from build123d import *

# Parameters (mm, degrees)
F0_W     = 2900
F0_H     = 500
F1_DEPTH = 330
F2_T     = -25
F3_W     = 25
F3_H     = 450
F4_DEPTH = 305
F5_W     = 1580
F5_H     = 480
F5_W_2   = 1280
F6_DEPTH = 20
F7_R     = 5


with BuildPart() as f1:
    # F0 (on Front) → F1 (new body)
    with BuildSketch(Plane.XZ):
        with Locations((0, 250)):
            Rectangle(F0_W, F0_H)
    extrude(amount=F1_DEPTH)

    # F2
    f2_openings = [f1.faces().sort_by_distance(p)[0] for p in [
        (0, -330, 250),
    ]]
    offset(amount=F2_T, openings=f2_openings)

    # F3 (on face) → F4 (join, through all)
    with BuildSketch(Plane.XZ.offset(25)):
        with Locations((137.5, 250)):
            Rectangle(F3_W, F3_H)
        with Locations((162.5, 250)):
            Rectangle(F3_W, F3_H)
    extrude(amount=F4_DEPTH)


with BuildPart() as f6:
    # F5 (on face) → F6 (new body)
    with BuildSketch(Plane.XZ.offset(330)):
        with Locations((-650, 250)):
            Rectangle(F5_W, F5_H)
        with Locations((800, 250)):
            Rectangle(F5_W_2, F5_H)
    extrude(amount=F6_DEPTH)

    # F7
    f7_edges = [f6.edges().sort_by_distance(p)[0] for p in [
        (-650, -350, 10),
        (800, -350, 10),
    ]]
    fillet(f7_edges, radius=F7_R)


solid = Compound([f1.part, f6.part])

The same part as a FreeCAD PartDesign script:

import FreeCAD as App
import Part
import Sketcher
Q = App.Units.Quantity


def edges_at(feature, points):
    """Names of the edges that pass closest to the given points."""
    edges = feature.Shape.Edges
    near = lambda p: min(range(len(edges)), key=lambda i: edges[i].distToShape(Part.Vertex(*p))[0])
    return sorted({f"Edge{near(p) + 1}" for p in points})


def faces_at(feature, points):
    """Names of the faces that lie closest to the given points."""
    faces = feature.Shape.Faces
    near = lambda p: min(range(len(faces)), key=lambda i: faces[i].distToShape(Part.Vertex(*p))[0])
    return sorted({f"Face{near(p) + 1}" for p in points})


def add_polygon(sketch, points):
    """Adds a closed chain of lines whose ends are joined by coincident constraints."""
    first, n = sketch.GeometryCount, len(points)
    for a, b in zip(points, points[1:] + points[:1]):
        sketch.addGeometry(Part.LineSegment(App.Vector(*a, 0), App.Vector(*b, 0)), False)
    for i in range(n):
        sketch.addConstraint(Sketcher.Constraint("Coincident", first + i, 2, first + (i + 1) % n, 1))

doc = App.newDocument("Part")
body = doc.addObject("PartDesign::Body", "Body")

# Sketch on XZ plane
sketch1 = body.newObject("Sketcher::SketchObject", "Sketch")
sketch1.AttachmentSupport = (doc.getObject("XZ_Plane"), [""])
sketch1.MapMode = "FlatFace"
add_polygon(sketch1, [(-1450, 500), (-1450, 0), (1450, 0), (1450, 500)])  # lines 0-3
sketch1.addConstraint([
    Sketcher.Constraint("Vertical", 0),
    Sketcher.Constraint("Horizontal", 1),
    Sketcher.Constraint("Vertical", 2),
    Sketcher.Constraint("Horizontal", 3),
    Sketcher.Constraint("Symmetric", 0, 2, 1, 2, -1, 1),
    Sketcher.Constraint("DistanceX", 1, 1, 1, 2, Q("2900 mm")),
    Sketcher.Constraint("DistanceY", 0, 2, 0, 1, Q("500 mm")),
])
pad1 = body.newObject("PartDesign::Pad", "Pad")
pad1.Profile = sketch1
pad1.Length = 330
doc.recompute()

thickness = body.newObject("PartDesign::Thickness", "Thickness")
thickness.Base = (pad1, faces_at(pad1, [(0, -330, 250)]))
thickness.Value = 25
thickness.Reversed = True
thickness.Join = "Arc"

# Sketch on XZ plane
sketch2 = body.newObject("Sketcher::SketchObject", "Sketch001")
sketch2.AttachmentSupport = (doc.getObject("XZ_Plane"), [""])
sketch2.MapMode = "FlatFace"
sketch2.AttachmentOffset = App.Placement(App.Vector(0, 0, 25), App.Rotation())
add_polygon(sketch2, [(125, 475), (125, 25), (175, 25), (175, 475)])  # lines 0-3
sketch2.addConstraint([
    Sketcher.Constraint("Vertical", 0),
    Sketcher.Constraint("Horizontal", 1),
    Sketcher.Constraint("Vertical", 2),
    Sketcher.Constraint("Horizontal", 3),
    Sketcher.Constraint("DistanceX", 1, 1, 1, 2, Q("50 mm")),
    Sketcher.Constraint("DistanceY", 0, 2, 0, 1, Q("450 mm")),
    Sketcher.Constraint("DistanceX", -1, 1, 0, 2, Q("125 mm")),
    Sketcher.Constraint("DistanceY", -1, 1, 0, 2, Q("25 mm")),
])
pad2 = body.newObject("PartDesign::Pad", "Pad001")
pad2.Profile = sketch2
pad2.Length = 305
body2 = doc.addObject("PartDesign::Body", "Body001")
body2.AllowCompound = True

# Sketch on XZ plane
sketch3 = body2.newObject("Sketcher::SketchObject", "Sketch002")
sketch3.AttachmentSupport = (doc.getObject("XZ_Plane001"), [""])
sketch3.MapMode = "FlatFace"
sketch3.AttachmentOffset = App.Placement(App.Vector(0, 0, 330), App.Rotation())
add_polygon(sketch3, [(-1440, 490), (-1440, 10), (140, 10), (140, 490)])  # lines 0-3
add_polygon(sketch3, [(160, 490), (160, 10), (1440, 10), (1440, 490)])  # lines 4-7
sketch3.addConstraint([
    Sketcher.Constraint("Vertical", 0),
    Sketcher.Constraint("Horizontal", 1),
    Sketcher.Constraint("Vertical", 2),
    Sketcher.Constraint("Horizontal", 3),
    Sketcher.Constraint("Vertical", 4),
    Sketcher.Constraint("Horizontal", 5),
    Sketcher.Constraint("Vertical", 6),
    Sketcher.Constraint("Horizontal", 7),
    Sketcher.Constraint("Symmetric", 0, 2, 5, 2, -2),
    Sketcher.Constraint("Horizontal", 3, 2, 6, 2),
    Sketcher.Constraint("DistanceX", 1, 1, 1, 2, Q("1580 mm")),
    Sketcher.Constraint("DistanceX", 5, 1, 5, 2, Q("1280 mm")),
    Sketcher.Constraint("DistanceY", 0, 2, 0, 1, Q("480 mm")),
    Sketcher.Constraint("DistanceX", 0, 2, -1, 1, Q("1440 mm")),
    Sketcher.Constraint("DistanceY", -1, 1, 0, 2, Q("10 mm")),
])
pad3 = body2.newObject("PartDesign::Pad", "Pad002")
pad3.Profile = sketch3
pad3.Length = 20
doc.recompute()

fillet = body2.newObject("PartDesign::Fillet", "Fillet")
fillet.Base = (pad3, edges_at(pad3, [(-650, -350, 10), (800, -350, 10)]))
fillet.Radius = 5

doc.recompute()
